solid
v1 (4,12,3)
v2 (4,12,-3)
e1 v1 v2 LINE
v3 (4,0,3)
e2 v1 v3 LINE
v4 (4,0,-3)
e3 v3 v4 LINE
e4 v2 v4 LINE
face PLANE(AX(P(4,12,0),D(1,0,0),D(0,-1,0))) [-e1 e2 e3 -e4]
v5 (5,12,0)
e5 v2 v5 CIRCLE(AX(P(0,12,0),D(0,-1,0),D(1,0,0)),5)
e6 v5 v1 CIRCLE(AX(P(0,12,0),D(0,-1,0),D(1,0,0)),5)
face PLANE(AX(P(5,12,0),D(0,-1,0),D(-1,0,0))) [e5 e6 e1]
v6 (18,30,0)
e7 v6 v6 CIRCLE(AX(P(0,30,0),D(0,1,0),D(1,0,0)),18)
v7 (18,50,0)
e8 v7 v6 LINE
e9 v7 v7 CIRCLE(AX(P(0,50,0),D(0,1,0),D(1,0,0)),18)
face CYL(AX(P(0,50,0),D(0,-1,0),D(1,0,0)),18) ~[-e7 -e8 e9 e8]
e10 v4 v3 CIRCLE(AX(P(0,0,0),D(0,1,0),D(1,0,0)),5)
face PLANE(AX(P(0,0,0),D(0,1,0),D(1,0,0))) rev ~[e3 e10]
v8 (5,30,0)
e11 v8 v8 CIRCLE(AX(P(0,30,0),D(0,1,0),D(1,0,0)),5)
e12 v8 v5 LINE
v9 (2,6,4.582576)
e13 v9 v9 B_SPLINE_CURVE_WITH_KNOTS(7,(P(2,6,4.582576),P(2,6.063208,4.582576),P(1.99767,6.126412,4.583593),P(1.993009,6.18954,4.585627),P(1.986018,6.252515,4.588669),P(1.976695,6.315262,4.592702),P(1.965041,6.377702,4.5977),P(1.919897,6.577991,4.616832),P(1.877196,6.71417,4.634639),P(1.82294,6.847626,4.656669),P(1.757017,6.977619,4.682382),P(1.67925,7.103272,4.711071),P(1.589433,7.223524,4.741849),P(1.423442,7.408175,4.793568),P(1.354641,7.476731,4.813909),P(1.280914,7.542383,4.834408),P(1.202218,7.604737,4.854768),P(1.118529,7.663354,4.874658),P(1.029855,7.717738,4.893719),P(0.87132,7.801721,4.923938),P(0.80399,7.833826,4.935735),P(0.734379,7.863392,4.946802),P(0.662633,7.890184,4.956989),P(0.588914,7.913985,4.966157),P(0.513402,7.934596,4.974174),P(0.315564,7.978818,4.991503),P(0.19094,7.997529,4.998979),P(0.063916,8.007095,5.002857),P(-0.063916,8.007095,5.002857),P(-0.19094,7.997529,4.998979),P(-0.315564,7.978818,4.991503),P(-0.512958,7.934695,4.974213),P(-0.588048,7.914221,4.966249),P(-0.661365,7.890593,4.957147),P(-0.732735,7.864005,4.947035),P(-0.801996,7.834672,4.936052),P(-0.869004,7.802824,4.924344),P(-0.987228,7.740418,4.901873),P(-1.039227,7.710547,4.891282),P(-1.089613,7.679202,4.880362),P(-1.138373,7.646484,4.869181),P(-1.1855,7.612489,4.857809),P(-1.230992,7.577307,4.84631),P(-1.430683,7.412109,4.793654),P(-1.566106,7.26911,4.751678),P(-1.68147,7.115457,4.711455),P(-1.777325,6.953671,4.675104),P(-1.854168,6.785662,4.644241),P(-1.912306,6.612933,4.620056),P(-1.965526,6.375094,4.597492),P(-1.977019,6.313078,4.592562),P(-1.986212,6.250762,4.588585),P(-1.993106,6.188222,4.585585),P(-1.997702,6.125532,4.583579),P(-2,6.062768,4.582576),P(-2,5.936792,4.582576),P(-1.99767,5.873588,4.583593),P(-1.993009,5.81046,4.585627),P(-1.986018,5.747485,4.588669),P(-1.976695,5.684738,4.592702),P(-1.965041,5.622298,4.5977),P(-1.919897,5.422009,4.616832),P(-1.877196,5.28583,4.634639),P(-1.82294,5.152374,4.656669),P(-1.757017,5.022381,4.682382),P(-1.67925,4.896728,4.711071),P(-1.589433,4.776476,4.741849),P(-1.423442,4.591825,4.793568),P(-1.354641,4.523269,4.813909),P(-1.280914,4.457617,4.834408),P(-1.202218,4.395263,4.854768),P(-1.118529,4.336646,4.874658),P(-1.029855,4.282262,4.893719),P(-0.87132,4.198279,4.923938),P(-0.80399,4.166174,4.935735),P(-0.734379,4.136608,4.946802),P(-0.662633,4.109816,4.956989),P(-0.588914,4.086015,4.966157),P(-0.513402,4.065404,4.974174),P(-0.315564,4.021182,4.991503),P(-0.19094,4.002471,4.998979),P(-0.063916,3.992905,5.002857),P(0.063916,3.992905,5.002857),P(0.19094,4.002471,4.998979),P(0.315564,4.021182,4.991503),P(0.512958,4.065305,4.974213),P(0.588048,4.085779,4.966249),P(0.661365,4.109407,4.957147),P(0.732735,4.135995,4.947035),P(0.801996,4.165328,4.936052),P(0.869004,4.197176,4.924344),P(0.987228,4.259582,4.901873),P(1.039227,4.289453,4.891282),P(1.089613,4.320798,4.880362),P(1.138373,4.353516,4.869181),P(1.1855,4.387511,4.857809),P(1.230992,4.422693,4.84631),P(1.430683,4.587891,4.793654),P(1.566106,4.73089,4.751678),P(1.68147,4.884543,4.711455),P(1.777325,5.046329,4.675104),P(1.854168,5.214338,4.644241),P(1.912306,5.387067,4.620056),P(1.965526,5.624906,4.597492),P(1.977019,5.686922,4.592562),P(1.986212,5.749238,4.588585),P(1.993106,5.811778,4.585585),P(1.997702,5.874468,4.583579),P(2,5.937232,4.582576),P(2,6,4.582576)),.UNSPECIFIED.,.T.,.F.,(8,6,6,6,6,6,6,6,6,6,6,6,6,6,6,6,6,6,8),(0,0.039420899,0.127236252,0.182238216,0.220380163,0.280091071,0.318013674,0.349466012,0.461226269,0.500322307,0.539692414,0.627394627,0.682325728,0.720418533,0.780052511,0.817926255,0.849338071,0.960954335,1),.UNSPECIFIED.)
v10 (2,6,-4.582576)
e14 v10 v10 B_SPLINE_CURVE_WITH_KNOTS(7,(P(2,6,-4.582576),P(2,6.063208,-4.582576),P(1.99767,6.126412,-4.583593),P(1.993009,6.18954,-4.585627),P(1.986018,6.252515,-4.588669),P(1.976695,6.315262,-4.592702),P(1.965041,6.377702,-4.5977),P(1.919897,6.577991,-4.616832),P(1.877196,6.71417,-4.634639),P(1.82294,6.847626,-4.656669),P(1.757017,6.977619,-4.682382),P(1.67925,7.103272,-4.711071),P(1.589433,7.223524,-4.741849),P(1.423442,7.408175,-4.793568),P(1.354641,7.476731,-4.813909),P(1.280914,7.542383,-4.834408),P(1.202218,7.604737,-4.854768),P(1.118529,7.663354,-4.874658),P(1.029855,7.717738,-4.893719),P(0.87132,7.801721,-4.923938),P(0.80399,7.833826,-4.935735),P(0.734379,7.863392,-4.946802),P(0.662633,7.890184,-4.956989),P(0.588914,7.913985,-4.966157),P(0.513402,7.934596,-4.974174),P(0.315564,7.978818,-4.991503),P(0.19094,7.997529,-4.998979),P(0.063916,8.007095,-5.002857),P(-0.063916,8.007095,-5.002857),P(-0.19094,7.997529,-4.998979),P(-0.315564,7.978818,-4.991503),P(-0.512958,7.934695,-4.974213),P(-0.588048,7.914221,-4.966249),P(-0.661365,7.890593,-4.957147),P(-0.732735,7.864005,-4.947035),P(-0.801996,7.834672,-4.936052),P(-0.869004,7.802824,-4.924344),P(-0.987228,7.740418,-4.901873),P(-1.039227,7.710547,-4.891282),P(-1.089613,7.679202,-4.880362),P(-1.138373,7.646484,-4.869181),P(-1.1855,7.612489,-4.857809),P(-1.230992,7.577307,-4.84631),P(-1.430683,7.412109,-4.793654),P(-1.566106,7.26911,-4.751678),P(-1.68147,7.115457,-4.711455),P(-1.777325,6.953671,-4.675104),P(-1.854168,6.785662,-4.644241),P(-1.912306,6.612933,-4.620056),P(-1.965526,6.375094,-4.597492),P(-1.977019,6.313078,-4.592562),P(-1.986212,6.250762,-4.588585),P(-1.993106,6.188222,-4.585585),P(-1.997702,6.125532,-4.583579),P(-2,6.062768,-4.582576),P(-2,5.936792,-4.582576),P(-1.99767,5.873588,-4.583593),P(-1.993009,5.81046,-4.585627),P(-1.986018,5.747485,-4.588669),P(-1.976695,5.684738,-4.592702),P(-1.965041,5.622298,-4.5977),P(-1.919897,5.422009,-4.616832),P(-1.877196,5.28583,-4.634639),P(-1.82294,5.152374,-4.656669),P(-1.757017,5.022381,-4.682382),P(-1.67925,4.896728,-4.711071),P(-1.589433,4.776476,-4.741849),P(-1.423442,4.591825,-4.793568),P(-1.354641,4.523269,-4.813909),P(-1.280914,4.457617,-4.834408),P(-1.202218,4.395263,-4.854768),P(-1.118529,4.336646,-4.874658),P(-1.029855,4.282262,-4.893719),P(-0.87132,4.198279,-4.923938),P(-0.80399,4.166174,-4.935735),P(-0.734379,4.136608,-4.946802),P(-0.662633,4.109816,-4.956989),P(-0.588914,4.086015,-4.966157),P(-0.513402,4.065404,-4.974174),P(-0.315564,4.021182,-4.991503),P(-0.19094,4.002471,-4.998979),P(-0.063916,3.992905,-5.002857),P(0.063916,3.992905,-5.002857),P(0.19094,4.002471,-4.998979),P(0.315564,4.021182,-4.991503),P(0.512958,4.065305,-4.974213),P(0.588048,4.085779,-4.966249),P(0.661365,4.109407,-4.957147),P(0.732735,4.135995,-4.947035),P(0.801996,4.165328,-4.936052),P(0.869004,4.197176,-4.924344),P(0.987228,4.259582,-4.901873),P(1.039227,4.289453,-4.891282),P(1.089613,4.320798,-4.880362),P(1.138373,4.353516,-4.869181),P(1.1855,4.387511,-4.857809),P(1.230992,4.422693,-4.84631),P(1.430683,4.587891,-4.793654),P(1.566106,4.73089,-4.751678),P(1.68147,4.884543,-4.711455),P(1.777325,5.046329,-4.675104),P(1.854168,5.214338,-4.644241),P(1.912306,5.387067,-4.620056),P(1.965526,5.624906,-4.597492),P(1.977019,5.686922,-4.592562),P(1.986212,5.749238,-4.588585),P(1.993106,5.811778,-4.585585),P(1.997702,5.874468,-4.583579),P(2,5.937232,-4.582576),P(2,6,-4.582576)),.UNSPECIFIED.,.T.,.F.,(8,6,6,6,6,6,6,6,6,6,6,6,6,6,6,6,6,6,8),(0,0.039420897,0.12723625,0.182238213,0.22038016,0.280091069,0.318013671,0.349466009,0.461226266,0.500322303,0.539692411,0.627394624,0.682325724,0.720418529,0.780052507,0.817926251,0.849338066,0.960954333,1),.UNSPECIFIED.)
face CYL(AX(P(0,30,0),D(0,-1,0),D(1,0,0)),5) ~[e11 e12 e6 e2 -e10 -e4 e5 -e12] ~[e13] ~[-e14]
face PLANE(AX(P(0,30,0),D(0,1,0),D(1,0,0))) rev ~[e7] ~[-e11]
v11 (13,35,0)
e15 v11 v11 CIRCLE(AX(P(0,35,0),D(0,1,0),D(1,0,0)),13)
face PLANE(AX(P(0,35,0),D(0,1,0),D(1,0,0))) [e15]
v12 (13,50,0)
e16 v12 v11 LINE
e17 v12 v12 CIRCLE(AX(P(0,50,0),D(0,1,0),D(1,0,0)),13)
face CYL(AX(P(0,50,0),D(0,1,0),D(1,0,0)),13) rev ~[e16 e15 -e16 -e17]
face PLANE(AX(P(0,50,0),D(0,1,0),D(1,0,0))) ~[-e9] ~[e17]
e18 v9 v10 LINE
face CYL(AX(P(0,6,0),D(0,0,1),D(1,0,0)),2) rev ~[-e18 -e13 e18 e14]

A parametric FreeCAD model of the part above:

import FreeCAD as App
import Part
import Sketcher

V = App.Vector

doc = App.newDocument("Part")
body = doc.addObject("PartDesign::Body", "Body")

sketch1 = body.newObject("Sketcher::SketchObject", "Sketch")
sketch1.AttachmentSupport = (doc.getObject("XY_Plane"), [""])
sketch1.MapMode = "FlatFace"
sketch1.addGeometry(Part.LineSegment(V(0, 50, 0), V(0, 0, 0)), False)
sketch1.addGeometry(Part.LineSegment(V(0, 0, 0), V(5, 0, 0)), False)
sketch1.addGeometry(Part.LineSegment(V(5, 0, 0), V(5, 30, 0)), False)
sketch1.addGeometry(Part.LineSegment(V(5, 30, 0), V(18, 30, 0)), False)
sketch1.addGeometry(Part.LineSegment(V(18, 30, 0), V(18, 50, 0)), False)
sketch1.addGeometry(Part.LineSegment(V(18, 50, 0), V(0, 50, 0)), False)
sketch1.addConstraint(Sketcher.Constraint("Coincident", 0, 2, 1, 1))
sketch1.addConstraint(Sketcher.Constraint("Coincident", 1, 2, 2, 1))
sketch1.addConstraint(Sketcher.Constraint("Coincident", 2, 2, 3, 1))
sketch1.addConstraint(Sketcher.Constraint("Coincident", 3, 2, 4, 1))
sketch1.addConstraint(Sketcher.Constraint("Coincident", 4, 2, 5, 1))
sketch1.addConstraint(Sketcher.Constraint("Coincident", 5, 2, 0, 1))
sketch1.addConstraint(Sketcher.Constraint("Vertical", 0))
sketch1.addConstraint(Sketcher.Constraint("Horizontal", 1))
sketch1.addConstraint(Sketcher.Constraint("Vertical", 2))
sketch1.addConstraint(Sketcher.Constraint("Horizontal", 3))
sketch1.addConstraint(Sketcher.Constraint("Vertical", 4))
sketch1.addConstraint(Sketcher.Constraint("Horizontal", 5))
sketch1.addConstraint(Sketcher.Constraint("Coincident", 0, 2, -1, 1))
sketch1.addConstraint(Sketcher.Constraint("DistanceX", 3, 1, 3, 2, 13.0))
sketch1.addConstraint(Sketcher.Constraint("DistanceX", 5, 2, 5, 1, 18.0))
sketch1.addConstraint(Sketcher.Constraint("DistanceY", 0, 2, 0, 1, 50.0))
sketch1.addConstraint(Sketcher.Constraint("DistanceY", 4, 1, 4, 2, 20.0))
revolution = body.newObject("PartDesign::Revolution", "Revolution")
revolution.Profile = sketch1
revolution.ReferenceAxis = (sketch1, ["V_Axis"])
revolution.Angle = 360

sketch2 = body.newObject("Sketcher::SketchObject", "Sketch001")
sketch2.AttachmentSupport = (doc.getObject("XZ_Plane"), [""])
sketch2.MapMode = "FlatFace"
sketch2.AttachmentOffset = App.Placement(V(0, 0, -50), App.Rotation())
sketch2.addGeometry(Part.Circle(V(0, 0, 0), V(0, 0, 1), 13), False)
sketch2.addConstraint(Sketcher.Constraint("Coincident", 0, 3, -1, 1))
sketch2.addConstraint(Sketcher.Constraint("Diameter", 0, 26.0))
pocket1 = body.newObject("PartDesign::Pocket", "Pocket")
pocket1.Profile = sketch2
pocket1.Length = 15
pocket1.Reversed = True

sketch3 = body.newObject("Sketcher::SketchObject", "Sketch002")
sketch3.AttachmentSupport = (doc.getObject("XY_Plane"), [""])
sketch3.MapMode = "FlatFace"
sketch3.addGeometry(Part.LineSegment(V(4, 0, 0), V(5, 0, 0)), False)
sketch3.addGeometry(Part.LineSegment(V(5, 0, 0), V(5, 12, 0)), False)
sketch3.addGeometry(Part.LineSegment(V(5, 12, 0), V(4, 12, 0)), False)
sketch3.addGeometry(Part.LineSegment(V(4, 12, 0), V(4, 0, 0)), False)
sketch3.addConstraint(Sketcher.Constraint("Coincident", 0, 2, 1, 1))
sketch3.addConstraint(Sketcher.Constraint("Coincident", 1, 2, 2, 1))
sketch3.addConstraint(Sketcher.Constraint("Coincident", 2, 2, 3, 1))
sketch3.addConstraint(Sketcher.Constraint("Coincident", 3, 2, 0, 1))
sketch3.addConstraint(Sketcher.Constraint("Horizontal", 0))
sketch3.addConstraint(Sketcher.Constraint("Vertical", 1))
sketch3.addConstraint(Sketcher.Constraint("Horizontal", 2))
sketch3.addConstraint(Sketcher.Constraint("Vertical", 3))
sketch3.addConstraint(Sketcher.Constraint("PointOnObject", 0, 2, -1))
sketch3.addConstraint(Sketcher.Constraint("DistanceY", 1, 1, 1, 2, 12.0))
sketch3.addConstraint(Sketcher.Constraint("DistanceX", 0, 1, 0, 2, 1.0))
sketch3.addConstraint(Sketcher.Constraint("DistanceX", -1, 1, 0, 2, 5.0))
pocket2 = body.newObject("PartDesign::Pocket", "Pocket001")
pocket2.Profile = sketch3
pocket2.Type = "ThroughAll"
pocket2.Midplane = True

sketch4 = body.newObject("Sketcher::SketchObject", "Sketch003")
sketch4.AttachmentSupport = (doc.getObject("XY_Plane"), [""])
sketch4.MapMode = "FlatFace"
sketch4.addGeometry(Part.Circle(V(0, 6, 0), V(0, 0, 1), 2), False)
sketch4.addConstraint(Sketcher.Constraint("PointOnObject", 0, 3, -2))
sketch4.addConstraint(Sketcher.Constraint("Diameter", 0, 4.0))
sketch4.addConstraint(Sketcher.Constraint("DistanceY", -1, 1, 0, 3, 6.0))
pocket3 = body.newObject("PartDesign::Pocket", "Pocket002")
pocket3.Profile = sketch4
pocket3.Type = "ThroughAll"
pocket3.Midplane = True

doc.recompute()
